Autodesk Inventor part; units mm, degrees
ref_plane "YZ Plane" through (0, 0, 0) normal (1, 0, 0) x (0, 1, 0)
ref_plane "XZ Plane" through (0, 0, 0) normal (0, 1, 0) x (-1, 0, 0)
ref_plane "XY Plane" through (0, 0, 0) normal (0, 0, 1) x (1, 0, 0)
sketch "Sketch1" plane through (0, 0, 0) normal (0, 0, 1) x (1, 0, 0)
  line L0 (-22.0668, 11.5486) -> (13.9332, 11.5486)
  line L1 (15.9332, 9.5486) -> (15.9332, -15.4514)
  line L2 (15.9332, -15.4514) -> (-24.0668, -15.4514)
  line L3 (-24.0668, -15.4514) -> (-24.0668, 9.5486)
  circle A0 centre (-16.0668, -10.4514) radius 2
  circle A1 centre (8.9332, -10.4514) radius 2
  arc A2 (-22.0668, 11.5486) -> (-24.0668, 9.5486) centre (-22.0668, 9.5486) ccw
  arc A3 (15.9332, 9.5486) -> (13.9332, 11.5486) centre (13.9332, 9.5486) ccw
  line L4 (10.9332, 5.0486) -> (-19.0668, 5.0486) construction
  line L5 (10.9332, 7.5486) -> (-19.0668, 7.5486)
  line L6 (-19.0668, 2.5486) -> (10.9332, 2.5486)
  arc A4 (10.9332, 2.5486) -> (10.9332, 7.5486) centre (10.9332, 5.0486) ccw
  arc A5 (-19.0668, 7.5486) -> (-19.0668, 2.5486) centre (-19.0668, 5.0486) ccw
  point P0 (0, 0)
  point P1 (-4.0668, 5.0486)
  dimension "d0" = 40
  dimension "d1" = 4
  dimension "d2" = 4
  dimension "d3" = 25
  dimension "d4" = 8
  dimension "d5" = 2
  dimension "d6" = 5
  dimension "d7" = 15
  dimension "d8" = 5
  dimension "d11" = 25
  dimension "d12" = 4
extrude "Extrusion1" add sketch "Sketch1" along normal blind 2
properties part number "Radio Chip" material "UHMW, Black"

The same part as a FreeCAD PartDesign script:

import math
import FreeCAD as App
import Part
import Sketcher

doc = App.newDocument("Part")
body = doc.addObject("PartDesign::Body", "Body")

# Sketch on XY plane
sketch1 = body.newObject("Sketcher::SketchObject", "Sketch")
sketch1.AttachmentSupport = (doc.getObject("XY_Plane"), [""])
sketch1.MapMode = "FlatFace"
sketch1.addGeometry(Part.LineSegment(App.Vector(13.9, 11.5, 0), App.Vector(-22.1, 11.5, 0)), False)
sketch1.addGeometry(Part.ArcOfCircle(Part.Circle(App.Vector(-22.1, 9.5, 0), App.Vector(0, 0, 1), 2), math.radians(90), math.radians(180)), False)
sketch1.addGeometry(Part.LineSegment(App.Vector(-24.1, 9.5, 0), App.Vector(-24.1, -15.5, 0)), False)
sketch1.addGeometry(Part.LineSegment(App.Vector(-24.1, -15.5, 0), App.Vector(15.9, -15.5, 0)), False)
sketch1.addGeometry(Part.LineSegment(App.Vector(15.9, -15.5, 0), App.Vector(15.9, 9.5, 0)), False)
sketch1.addGeometry(Part.ArcOfCircle(Part.Circle(App.Vector(13.9, 9.5, 0), App.Vector(0, 0, 1), 2), math.radians(0), math.radians(90)), False)
sketch1.addGeometry(Part.Circle(App.Vector(-16.1, -10.5, 0), App.Vector(0, 0, 1), 2), False)
sketch1.addGeometry(Part.Circle(App.Vector(8.9, -10.5, 0), App.Vector(0, 0, 1), 2), False)
sketch1.addGeometry(Part.LineSegment(App.Vector(-19.1, 7.5, 0), App.Vector(10.9, 7.5, 0)), False)
sketch1.addGeometry(Part.ArcOfCircle(Part.Circle(App.Vector(10.9, 5, 0), App.Vector(0, 0, 1), 2.5), math.radians(-90), math.radians(90)), False)
sketch1.addGeometry(Part.LineSegment(App.Vector(10.9, 2.5, 0), App.Vector(-19.1, 2.5, 0)), False)
sketch1.addGeometry(Part.ArcOfCircle(Part.Circle(App.Vector(-19.1, 5, 0), App.Vector(0, 0, 1), 2.5), math.radians(90), math.radians(270)), False)
sketch1.addConstraint(Sketcher.Constraint("Tangent", 0, 2, 1, 1))
sketch1.addConstraint(Sketcher.Constraint("Tangent", 1, 2, 2, 1))
sketch1.addConstraint(Sketcher.Constraint("Coincident", 2, 2, 3, 1))
sketch1.addConstraint(Sketcher.Constraint("Coincident", 3, 2, 4, 1))
sketch1.addConstraint(Sketcher.Constraint("Tangent", 4, 2, 5, 1))
sketch1.addConstraint(Sketcher.Constraint("Tangent", 5, 2, 0, 1))
sketch1.addConstraint(Sketcher.Constraint("Tangent", 8, 2, 9, 2))
sketch1.addConstraint(Sketcher.Constraint("Tangent", 9, 1, 10, 1))
sketch1.addConstraint(Sketcher.Constraint("Tangent", 10, 2, 11, 2))
sketch1.addConstraint(Sketcher.Constraint("Tangent", 11, 1, 8, 1))
sketch1.addConstraint(Sketcher.Constraint("Horizontal", 0))
sketch1.addConstraint(Sketcher.Constraint("Vertical", 2))
sketch1.addConstraint(Sketcher.Constraint("Horizontal", 3))
sketch1.addConstraint(Sketcher.Constraint("Vertical", 4))
sketch1.addConstraint(Sketcher.Constraint("Horizontal", 8))
sketch1.addConstraint(Sketcher.Constraint("Horizontal", 10))
sketch1.addConstraint(Sketcher.Constraint("Equal", 1, 5))
sketch1.addConstraint(Sketcher.Constraint("Equal", 5, 6))
sketch1.addConstraint(Sketcher.Constraint("Equal", 6, 7))
sketch1.addConstraint(Sketcher.Constraint("Horizontal", 6, 3, 7, 3))
sketch1.addConstraint(Sketcher.Constraint("Diameter", 6, 4.0))
sketch1.addConstraint(Sketcher.Constraint("Radius", 9, 2.5))
sketch1.addConstraint(Sketcher.Constraint("DistanceX", 3, 1, 3, 2, 40.0))
sketch1.addConstraint(Sketcher.Constraint("DistanceY", 2, 2, 2, 1, 25.0))
sketch1.addConstraint(Sketcher.Constraint("DistanceX", 7, 3, 5, 3, 5.0))
sketch1.addConstraint(Sketcher.Constraint("DistanceX", 6, 3, 7, 3, 25.0))
sketch1.addConstraint(Sketcher.Constraint("DistanceX", 7, 3, 9, 3, 2.0))
sketch1.addConstraint(Sketcher.Constraint("DistanceX", 1, 2, 11, 3, 5.0))
sketch1.addConstraint(Sketcher.Constraint("DistanceY", 2, 2, 6, 3, 5.0))
sketch1.addConstraint(Sketcher.Constraint("DistanceY", 8, 2, 5, 3, 2.0))
sketch1.addConstraint(Sketcher.Constraint("DistanceX", 1, 3, -1, 1, 22.0668))
sketch1.addConstraint(Sketcher.Constraint("DistanceY", -1, 1, 1, 3, 9.5486))
pad1 = body.newObject("PartDesign::Pad", "Pad")
pad1.Profile = sketch1
pad1.Length = 2

doc.recompute()
